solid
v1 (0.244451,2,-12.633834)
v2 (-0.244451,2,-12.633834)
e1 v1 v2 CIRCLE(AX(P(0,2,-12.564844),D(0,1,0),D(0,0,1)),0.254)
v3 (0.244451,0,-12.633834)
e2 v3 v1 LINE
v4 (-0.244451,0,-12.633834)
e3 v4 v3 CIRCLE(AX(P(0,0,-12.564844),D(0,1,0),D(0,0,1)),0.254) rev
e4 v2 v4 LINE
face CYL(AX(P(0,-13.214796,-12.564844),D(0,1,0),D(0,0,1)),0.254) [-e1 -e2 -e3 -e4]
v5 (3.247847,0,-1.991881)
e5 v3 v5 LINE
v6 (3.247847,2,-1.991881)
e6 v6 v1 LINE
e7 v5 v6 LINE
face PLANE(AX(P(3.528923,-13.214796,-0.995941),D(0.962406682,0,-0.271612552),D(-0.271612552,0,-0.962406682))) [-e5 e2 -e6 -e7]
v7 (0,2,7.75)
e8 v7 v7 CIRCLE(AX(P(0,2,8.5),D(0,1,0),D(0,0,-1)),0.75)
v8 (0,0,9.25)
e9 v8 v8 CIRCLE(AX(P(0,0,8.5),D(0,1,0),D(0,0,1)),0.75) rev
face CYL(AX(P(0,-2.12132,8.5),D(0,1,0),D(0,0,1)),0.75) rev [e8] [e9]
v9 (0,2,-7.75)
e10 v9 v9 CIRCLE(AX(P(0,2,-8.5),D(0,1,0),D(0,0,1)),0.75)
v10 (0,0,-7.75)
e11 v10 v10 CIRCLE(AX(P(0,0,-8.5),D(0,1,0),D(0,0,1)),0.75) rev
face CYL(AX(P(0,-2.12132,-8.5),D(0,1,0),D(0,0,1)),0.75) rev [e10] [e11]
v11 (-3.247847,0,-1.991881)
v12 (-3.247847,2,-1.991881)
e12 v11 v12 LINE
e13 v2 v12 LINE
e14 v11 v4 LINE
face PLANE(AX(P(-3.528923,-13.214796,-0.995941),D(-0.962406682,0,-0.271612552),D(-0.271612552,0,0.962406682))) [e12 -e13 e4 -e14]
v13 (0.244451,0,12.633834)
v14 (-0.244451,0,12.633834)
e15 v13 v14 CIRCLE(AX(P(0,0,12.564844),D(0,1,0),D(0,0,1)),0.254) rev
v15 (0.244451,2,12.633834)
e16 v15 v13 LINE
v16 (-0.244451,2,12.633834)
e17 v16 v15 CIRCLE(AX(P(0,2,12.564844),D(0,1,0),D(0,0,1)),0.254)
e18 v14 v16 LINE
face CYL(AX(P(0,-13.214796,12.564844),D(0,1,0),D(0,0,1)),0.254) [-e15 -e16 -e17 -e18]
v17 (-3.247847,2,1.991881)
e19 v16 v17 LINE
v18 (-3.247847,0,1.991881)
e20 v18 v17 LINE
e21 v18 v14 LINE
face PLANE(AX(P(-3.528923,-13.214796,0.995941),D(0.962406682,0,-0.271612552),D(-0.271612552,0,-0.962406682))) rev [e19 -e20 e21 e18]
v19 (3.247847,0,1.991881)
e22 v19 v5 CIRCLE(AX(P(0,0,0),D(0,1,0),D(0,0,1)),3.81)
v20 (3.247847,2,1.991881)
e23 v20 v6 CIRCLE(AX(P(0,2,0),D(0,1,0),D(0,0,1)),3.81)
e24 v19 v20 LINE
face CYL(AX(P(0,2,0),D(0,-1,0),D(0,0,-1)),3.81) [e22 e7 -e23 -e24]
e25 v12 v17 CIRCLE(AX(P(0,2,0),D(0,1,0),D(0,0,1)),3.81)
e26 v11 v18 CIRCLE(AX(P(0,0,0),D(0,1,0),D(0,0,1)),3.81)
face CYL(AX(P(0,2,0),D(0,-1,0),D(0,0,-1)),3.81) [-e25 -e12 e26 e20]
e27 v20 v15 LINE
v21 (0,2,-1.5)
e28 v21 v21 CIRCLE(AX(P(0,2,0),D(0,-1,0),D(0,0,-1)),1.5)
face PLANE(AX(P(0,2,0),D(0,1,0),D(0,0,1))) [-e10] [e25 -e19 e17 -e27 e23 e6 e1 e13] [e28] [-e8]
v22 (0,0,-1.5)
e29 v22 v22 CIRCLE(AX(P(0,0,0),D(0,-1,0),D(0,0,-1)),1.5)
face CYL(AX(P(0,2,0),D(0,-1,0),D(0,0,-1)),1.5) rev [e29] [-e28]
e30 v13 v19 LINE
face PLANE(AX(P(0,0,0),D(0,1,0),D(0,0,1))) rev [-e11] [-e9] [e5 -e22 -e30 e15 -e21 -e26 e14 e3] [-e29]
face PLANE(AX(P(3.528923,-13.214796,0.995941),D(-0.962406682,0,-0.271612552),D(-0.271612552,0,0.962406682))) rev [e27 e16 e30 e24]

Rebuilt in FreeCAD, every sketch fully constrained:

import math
import FreeCAD as App
import Part
import Sketcher
from FreeCAD import Vector
Q = App.Units.Quantity


def edges_at(feature, points):
    """Names of the edges that pass closest to the given points."""
    edges = feature.Shape.Edges
    near = lambda p: min(range(len(edges)), key=lambda i: edges[i].distToShape(Part.Vertex(*p))[0])
    return sorted({f"Edge{near(p) + 1}" for p in points})

doc = App.newDocument("Part")
body = doc.addObject("PartDesign::Body", "Body")

# Sketch on XZ plane
sketch1 = body.newObject("Sketcher::SketchObject", "Sketch")
sketch1.AttachmentSupport = (doc.getObject("XZ_Plane"), [""])
sketch1.MapMode = "FlatFace"
sketch1.addGeometry(Part.Circle(Vector(0, 0, 0), Vector(0, 0, 1), 3.8), False)
sketch1.addConstraint([
    Sketcher.Constraint("Coincident", 0, 3, -1, 1),
    Sketcher.Constraint("Diameter", 0, Q("7.62 mm")),
])
pad1 = body.newObject("PartDesign::Pad", "Pad")
pad1.Profile = sketch1
pad1.Length = 2
pad1.Reversed = True

# Sketch on XZ plane
sketch2 = body.newObject("Sketcher::SketchObject", "Sketch001")
sketch2.AttachmentSupport = (doc.getObject("XZ_Plane"), [""])
sketch2.MapMode = "FlatFace"
sketch2.AttachmentOffset = App.Placement(Vector(0, 0, -2), App.Rotation())
sketch2.addGeometry([
    Part.LineSegment(Vector(0, 13.5, 0), Vector(3.2, 2, 0)),  # 0
    Part.ArcOfCircle(Part.Circle(Vector(0, 0, 0), Vector(0, 0, 1), 3.8), math.radians(32), math.radians(148)),  # 1
    Part.LineSegment(Vector(-3.2, 2, 0), Vector(0, 13.5, 0)),  # 2
    Part.ArcOfCircle(Part.Circle(Vector(0, 0, 0), Vector(0, 0, 1), 3.8), math.radians(-148), math.radians(-32)),  # 3
    Part.LineSegment(Vector(3.2, -2, 0), Vector(0, -13.5, 0)),  # 4
    Part.LineSegment(Vector(0, -13.5, 0), Vector(-3.2, -2, 0)),  # 5
], False)
sketch2.addConstraint([
    Sketcher.Constraint("Coincident", 0, 2, 1, 1),
    Sketcher.Constraint("Coincident", 1, 2, 2, 1),
    Sketcher.Constraint("Coincident", 2, 2, 0, 1),
    Sketcher.Constraint("Coincident", 3, 2, 4, 1),
    Sketcher.Constraint("Coincident", 4, 2, 5, 1),
    Sketcher.Constraint("Coincident", 5, 2, 3, 1),
    Sketcher.Constraint("Coincident", 1, 3, -1, 1),
    Sketcher.Constraint("Coincident", 3, 3, -1, 1),
    Sketcher.Constraint("Equal", 1, 3),
    Sketcher.Constraint("Symmetric", 2, 2, 4, 2, -1, 1),
    Sketcher.Constraint("PointOnObject", 2, 2, -2),
    Sketcher.Constraint("Parallel", 2, 4),
    Sketcher.Constraint("Parallel", 0, 5),
    Sketcher.Constraint("Horizontal", 0, 2, 1, 2),
    Sketcher.Constraint("Radius", 1, Q("3.81 mm")),
    Sketcher.Constraint("DistanceY", -1, 1, 2, 2, Q("13.5 mm")),
    Sketcher.Constraint("DistanceY", -1, 1, 0, 2, Q("1.991881 mm")),
])
pad2 = body.newObject("PartDesign::Pad", "Pad001")
pad2.Profile = sketch2
pad2.Length = 2
doc.recompute()

fillet = body.newObject("PartDesign::Fillet", "Fillet")
fillet.Base = (pad2, edges_at(pad2, [(0, 1, -13.5), (0, 1, 13.5)]))
fillet.Radius = 0.254

# Sketch on XZ plane
sketch3 = body.newObject("Sketcher::SketchObject", "Sketch002")
sketch3.AttachmentSupport = (doc.getObject("XZ_Plane"), [""])
sketch3.MapMode = "FlatFace"
sketch3.AttachmentOffset = App.Placement(Vector(0, 0, -2), App.Rotation())
sketch3.addGeometry([
    Part.Circle(Vector(0, -8.5, 0), Vector(0, 0, 1), 0.8),
    Part.Circle(Vector(0, 8.5, 0), Vector(0, 0, 1), 0.8),
], False)
sketch3.addConstraint([
    Sketcher.Constraint("Equal", 0, 1),
    Sketcher.Constraint("Symmetric", 0, 3, 1, 3, -1, 1),
    Sketcher.Constraint("PointOnObject", 0, 3, -2),
    Sketcher.Constraint("Diameter", 0, Q("1.5 mm")),
    Sketcher.Constraint("DistanceY", 0, 3, 1, 3, Q("17 mm")),
])
pocket1 = body.newObject("PartDesign::Pocket", "Pocket")
pocket1.Profile = sketch3
pocket1.Length = 2
pocket1.Reversed = True

# Sketch on XZ plane
sketch4 = body.newObject("Sketcher::SketchObject", "Sketch003")
sketch4.AttachmentSupport = (doc.getObject("XZ_Plane"), [""])
sketch4.MapMode = "FlatFace"
sketch4.addGeometry(Part.Circle(Vector(0, 0, 0), Vector(0, 0, 1), 1.5), False)
sketch4.addConstraint([
    Sketcher.Constraint("Coincident", 0, 3, -1, 1),
    Sketcher.Constraint("Diameter", 0, Q("3 mm")),
])
pocket2 = body.newObject("PartDesign::Pocket", "Pocket001")
pocket2.Profile = sketch4
pocket2.Type = "ThroughAll"

doc.recompute()
